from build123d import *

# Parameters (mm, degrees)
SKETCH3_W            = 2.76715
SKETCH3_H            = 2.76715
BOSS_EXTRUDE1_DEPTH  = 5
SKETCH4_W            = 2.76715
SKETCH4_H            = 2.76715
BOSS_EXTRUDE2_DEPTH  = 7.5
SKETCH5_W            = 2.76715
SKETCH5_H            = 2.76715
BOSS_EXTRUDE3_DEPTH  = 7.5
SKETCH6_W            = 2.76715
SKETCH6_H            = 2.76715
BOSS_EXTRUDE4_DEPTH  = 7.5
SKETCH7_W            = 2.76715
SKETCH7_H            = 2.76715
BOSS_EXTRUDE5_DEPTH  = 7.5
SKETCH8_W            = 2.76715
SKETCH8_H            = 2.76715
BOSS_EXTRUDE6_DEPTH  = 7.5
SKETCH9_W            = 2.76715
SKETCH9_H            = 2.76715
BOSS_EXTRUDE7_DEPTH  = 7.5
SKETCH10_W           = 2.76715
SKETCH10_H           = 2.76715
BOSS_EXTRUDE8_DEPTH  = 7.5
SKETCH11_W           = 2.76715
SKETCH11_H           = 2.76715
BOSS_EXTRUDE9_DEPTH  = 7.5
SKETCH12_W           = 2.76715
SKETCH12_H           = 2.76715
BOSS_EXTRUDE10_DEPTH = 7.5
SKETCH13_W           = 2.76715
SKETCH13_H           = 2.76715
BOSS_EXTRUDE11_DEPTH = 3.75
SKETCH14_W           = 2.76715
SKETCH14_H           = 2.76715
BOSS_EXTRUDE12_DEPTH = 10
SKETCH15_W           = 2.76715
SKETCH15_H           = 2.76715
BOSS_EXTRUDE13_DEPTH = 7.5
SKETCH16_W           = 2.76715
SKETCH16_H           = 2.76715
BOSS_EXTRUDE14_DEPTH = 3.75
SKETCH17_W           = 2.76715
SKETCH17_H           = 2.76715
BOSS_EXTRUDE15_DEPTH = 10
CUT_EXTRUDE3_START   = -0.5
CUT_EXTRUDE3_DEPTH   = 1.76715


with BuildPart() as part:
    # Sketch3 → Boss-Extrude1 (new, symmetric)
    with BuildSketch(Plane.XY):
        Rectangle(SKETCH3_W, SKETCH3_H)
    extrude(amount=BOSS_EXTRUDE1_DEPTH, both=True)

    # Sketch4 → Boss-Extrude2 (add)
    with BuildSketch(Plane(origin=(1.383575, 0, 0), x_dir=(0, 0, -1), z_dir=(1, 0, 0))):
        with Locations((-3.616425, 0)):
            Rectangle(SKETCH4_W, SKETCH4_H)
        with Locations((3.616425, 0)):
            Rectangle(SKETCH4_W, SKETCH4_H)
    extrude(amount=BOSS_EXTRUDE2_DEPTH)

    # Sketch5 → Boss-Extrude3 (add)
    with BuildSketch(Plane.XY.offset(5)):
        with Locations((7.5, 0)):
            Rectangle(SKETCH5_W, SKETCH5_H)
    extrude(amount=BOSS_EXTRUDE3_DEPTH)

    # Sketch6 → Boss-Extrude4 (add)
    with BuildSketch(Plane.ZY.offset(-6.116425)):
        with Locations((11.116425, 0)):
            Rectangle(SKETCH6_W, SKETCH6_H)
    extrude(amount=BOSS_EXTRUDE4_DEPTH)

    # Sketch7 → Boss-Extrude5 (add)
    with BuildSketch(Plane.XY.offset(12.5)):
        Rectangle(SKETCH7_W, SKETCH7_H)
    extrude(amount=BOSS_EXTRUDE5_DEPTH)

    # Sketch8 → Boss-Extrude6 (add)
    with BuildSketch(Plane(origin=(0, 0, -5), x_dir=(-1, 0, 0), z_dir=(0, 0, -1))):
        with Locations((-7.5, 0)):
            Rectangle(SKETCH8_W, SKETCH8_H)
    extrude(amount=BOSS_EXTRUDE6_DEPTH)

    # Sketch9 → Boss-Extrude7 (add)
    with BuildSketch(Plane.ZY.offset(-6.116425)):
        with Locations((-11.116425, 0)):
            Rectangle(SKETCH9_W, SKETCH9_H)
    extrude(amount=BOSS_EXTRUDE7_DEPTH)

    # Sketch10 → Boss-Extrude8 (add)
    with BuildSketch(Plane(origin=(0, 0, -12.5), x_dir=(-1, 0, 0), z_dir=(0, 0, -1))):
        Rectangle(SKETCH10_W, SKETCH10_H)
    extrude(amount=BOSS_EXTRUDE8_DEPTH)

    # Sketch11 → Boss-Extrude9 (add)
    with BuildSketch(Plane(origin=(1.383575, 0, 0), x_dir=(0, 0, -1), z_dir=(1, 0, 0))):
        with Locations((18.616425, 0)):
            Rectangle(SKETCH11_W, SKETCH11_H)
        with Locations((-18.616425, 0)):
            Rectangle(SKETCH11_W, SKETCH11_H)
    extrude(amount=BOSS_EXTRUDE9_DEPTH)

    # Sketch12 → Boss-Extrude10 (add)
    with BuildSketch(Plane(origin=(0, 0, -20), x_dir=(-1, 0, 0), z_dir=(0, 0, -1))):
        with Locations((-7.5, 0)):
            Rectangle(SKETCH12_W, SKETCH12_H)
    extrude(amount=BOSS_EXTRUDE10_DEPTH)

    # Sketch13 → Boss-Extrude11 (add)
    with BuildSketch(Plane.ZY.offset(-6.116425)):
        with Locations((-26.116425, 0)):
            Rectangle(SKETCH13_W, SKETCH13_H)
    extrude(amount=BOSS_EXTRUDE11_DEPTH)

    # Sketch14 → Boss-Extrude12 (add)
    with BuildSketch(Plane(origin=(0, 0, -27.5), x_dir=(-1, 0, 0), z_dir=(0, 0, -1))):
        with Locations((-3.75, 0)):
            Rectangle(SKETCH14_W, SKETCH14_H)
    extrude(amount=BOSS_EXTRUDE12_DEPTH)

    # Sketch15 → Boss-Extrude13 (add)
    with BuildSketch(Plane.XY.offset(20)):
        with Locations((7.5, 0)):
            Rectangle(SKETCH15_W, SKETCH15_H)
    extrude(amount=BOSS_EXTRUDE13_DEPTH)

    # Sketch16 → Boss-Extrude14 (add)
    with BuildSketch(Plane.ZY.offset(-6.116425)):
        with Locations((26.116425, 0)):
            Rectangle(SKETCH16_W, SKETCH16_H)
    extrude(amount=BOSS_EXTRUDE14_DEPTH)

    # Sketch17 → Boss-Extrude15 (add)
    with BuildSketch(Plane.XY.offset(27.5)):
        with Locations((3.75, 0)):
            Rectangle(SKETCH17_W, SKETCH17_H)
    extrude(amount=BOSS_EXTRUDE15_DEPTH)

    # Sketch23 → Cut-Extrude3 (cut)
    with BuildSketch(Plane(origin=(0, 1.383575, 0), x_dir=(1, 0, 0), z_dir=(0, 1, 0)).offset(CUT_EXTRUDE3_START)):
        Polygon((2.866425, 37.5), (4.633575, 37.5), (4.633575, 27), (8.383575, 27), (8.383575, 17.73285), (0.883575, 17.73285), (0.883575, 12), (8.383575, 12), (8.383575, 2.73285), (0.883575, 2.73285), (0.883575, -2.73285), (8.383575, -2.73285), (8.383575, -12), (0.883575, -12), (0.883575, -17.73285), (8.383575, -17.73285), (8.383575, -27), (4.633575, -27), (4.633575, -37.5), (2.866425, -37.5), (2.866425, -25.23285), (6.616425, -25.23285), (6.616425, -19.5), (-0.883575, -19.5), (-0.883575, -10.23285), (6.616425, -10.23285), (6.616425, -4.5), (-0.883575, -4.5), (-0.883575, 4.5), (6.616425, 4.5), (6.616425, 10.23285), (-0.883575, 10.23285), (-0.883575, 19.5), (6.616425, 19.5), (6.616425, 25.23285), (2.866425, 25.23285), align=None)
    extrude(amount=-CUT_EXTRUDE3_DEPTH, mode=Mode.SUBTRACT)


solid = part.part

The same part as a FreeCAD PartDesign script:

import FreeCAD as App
import Part
import Sketcher
Q = App.Units.Quantity


def add_polygon(sketch, points):
    """Adds a closed chain of lines whose ends are joined by coincident constraints."""
    first, n = sketch.GeometryCount, len(points)
    for a, b in zip(points, points[1:] + points[:1]):
        sketch.addGeometry(Part.LineSegment(App.Vector(*a, 0), App.Vector(*b, 0)), False)
    for i in range(n):
        sketch.addConstraint(Sketcher.Constraint("Coincident", first + i, 2, first + (i + 1) % n, 1))

doc = App.newDocument("Part")
body = doc.addObject("PartDesign::Body", "Body")

sketch1 = body.newObject("Sketcher::SketchObject", "Sketch")
sketch1.AttachmentSupport = (doc.getObject("XY_Plane"), [""])
sketch1.MapMode = "FlatFace"
add_polygon(sketch1, [(-1.383575, 1.383575), (-1.383575, -1.383575), (1.383575, -1.383575), (1.383575, 1.383575)])
sketch1.addConstraint([
    Sketcher.Constraint("Vertical", 0),
    Sketcher.Constraint("Horizontal", 1),
    Sketcher.Constraint("Vertical", 2),
    Sketcher.Constraint("Horizontal", 3),
    Sketcher.Constraint("Symmetric", 0, 2, 2, 2, -1, 1),
    Sketcher.Constraint("Equal", 3, 0),
    Sketcher.Constraint("DistanceX", 1, 1, 1, 2, Q("2.76715 mm")),
])
pad1 = body.newObject("PartDesign::Pad", "Pad")
pad1.Profile = sketch1
pad1.Length = 10
pad1.Midplane = True

sketch2 = body.newObject("Sketcher::SketchObject", "Sketch001")
sketch2.AttachmentSupport = (doc.getObject("YZ_Plane"), [""])
sketch2.MapMode = "FlatFace"
sketch2.AttachmentOffset = App.Placement(App.Vector(0, 0, 1.383575), App.Rotation())
add_polygon(sketch2, [(1.383575, 5), (-1.383575, 5), (-1.383575, 2.23285), (1.383575, 2.23285)])
add_polygon(sketch2, [(1.383575, -2.23285), (-1.383575, -2.23285), (-1.383575, -5), (1.383575, -5)])
sketch2.addConstraint([
    Sketcher.Constraint("Horizontal", 0),
    Sketcher.Constraint("Vertical", 1),
    Sketcher.Constraint("Horizontal", 2),
    Sketcher.Constraint("Vertical", 3),
    Sketcher.Constraint("Horizontal", 4),
    Sketcher.Constraint("Vertical", 5),
    Sketcher.Constraint("Horizontal", 6),
    Sketcher.Constraint("Vertical", 7),
    Sketcher.Constraint("Symmetric", 2, 2, 4, 2, -1, 1),
    Sketcher.Constraint("Symmetric", 0, 2, 6, 2, -1, 1),
    Sketcher.Constraint("Vertical", 1, 2, 4, 2),
    Sketcher.Constraint("Equal", 6, 1),
    Sketcher.Constraint("DistanceY", -1, 1, 0, 2, Q("5 mm")),
    Sketcher.Constraint("DistanceX", 0, 2, 0, 1, Q("2.76715 mm")),
])
pad2 = body.newObject("PartDesign::Pad", "Pad001")
pad2.Profile = sketch2
pad2.Length = 7.5

sketch3 = body.newObject("Sketcher::SketchObject", "Sketch002")
sketch3.AttachmentSupport = (doc.getObject("XY_Plane"), [""])
sketch3.MapMode = "FlatFace"
sketch3.AttachmentOffset = App.Placement(App.Vector(0, 0, 5), App.Rotation())
add_polygon(sketch3, [(6.116425, 1.383575), (6.116425, -1.383575), (8.883575, -1.383575), (8.883575, 1.383575)])
sketch3.addConstraint([
    Sketcher.Constraint("Vertical", 0),
    Sketcher.Constraint("Horizontal", 1),
    Sketcher.Constraint("Vertical", 2),
    Sketcher.Constraint("Horizontal", 3),
    Sketcher.Constraint("Equal", 3, 0),
    Sketcher.Constraint("DistanceX", 1, 1, 1, 2, Q("2.76715 mm")),
    Sketcher.Constraint("DistanceX", -1, 1, 0, 2, Q("6.116425 mm")),
    Sketcher.Constraint("DistanceY", 0, 2, -1, 1, Q("1.383575 mm")),
])
pad3 = body.newObject("PartDesign::Pad", "Pad002")
pad3.Profile = sketch3
pad3.Length = 7.5

sketch4 = body.newObject("Sketcher::SketchObject", "Sketch003")
sketch4.AttachmentSupport = (doc.getObject("YZ_Plane"), [""])
sketch4.MapMode = "FlatFace"
sketch4.AttachmentOffset = App.Placement(App.Vector(0, 0, 6.116425), App.Rotation())
add_polygon(sketch4, [(1.383575, 9.73285), (-1.383575, 9.73285), (-1.383575, 12.5), (1.383575, 12.5)])
sketch4.addConstraint([
    Sketcher.Constraint("Horizontal", 0),
    Sketcher.Constraint("Vertical", 1),
    Sketcher.Constraint("Horizontal", 2),
    Sketcher.Constraint("Vertical", 3),
    Sketcher.Constraint("Equal", 2, 1),
    Sketcher.Constraint("DistanceY", -1, 1, 1, 2, Q("12.5 mm")),
    Sketcher.Constraint("DistanceX", 0, 2, 0, 1, Q("2.76715 mm")),
    Sketcher.Constraint("DistanceX", 0, 2, -1, 1, Q("1.383575 mm")),
])
pad4 = body.newObject("PartDesign::Pad", "Pad003")
pad4.Profile = sketch4
pad4.Length = 7.5
pad4.Reversed = True

sketch5 = body.newObject("Sketcher::SketchObject", "Sketch004")
sketch5.AttachmentSupport = (doc.getObject("XY_Plane"), [""])
sketch5.MapMode = "FlatFace"
sketch5.AttachmentOffset = App.Placement(App.Vector(0, 0, 12.5), App.Rotation())
add_polygon(sketch5, [(-1.383575, 1.383575), (-1.383575, -1.383575), (1.383575, -1.383575), (1.383575, 1.383575)])
sketch5.addConstraint([
    Sketcher.Constraint("Vertical", 0),
    Sketcher.Constraint("Horizontal", 1),
    Sketcher.Constraint("Vertical", 2),
    Sketcher.Constraint("Horizontal", 3),
    Sketcher.Constraint("Symmetric", 0, 2, 2, 2, -1, 1),
    Sketcher.Constraint("Equal", 3, 0),
    Sketcher.Constraint("DistanceX", 1, 1, 1, 2, Q("2.76715 mm")),
])
pad5 = body.newObject("PartDesign::Pad", "Pad004")
pad5.Profile = sketch5
pad5.Length = 7.5

sketch6 = body.newObject("Sketcher::SketchObject", "Sketch005")
sketch6.AttachmentSupport = (doc.getObject("XY_Plane"), [""])
sketch6.MapMode = "FlatFace"
sketch6.AttachmentOffset = App.Placement(App.Vector(0, 0, -5), App.Rotation())
add_polygon(sketch6, [(8.883575, 1.383575), (8.883575, -1.383575), (6.116425, -1.383575), (6.116425, 1.383575)])
sketch6.addConstraint([
    Sketcher.Constraint("Vertical", 0),
    Sketcher.Constraint("Horizontal", 1),
    Sketcher.Constraint("Vertical", 2),
    Sketcher.Constraint("Horizontal", 3),
    Sketcher.Constraint("Equal", 3, 0),
    Sketcher.Constraint("DistanceX", 1, 2, 1, 1, Q("2.76715 mm")),
    Sketcher.Constraint("DistanceX", -1, 1, 0, 2, Q("8.883575 mm")),
    Sketcher.Constraint("DistanceY", 0, 2, -1, 1, Q("1.383575 mm")),
])
pad6 = body.newObject("PartDesign::Pad", "Pad005")
pad6.Profile = sketch6
pad6.Length = 7.5
pad6.Reversed = True

sketch7 = body.newObject("Sketcher::SketchObject", "Sketch006")
sketch7.AttachmentSupport = (doc.getObject("YZ_Plane"), [""])
sketch7.MapMode = "FlatFace"
sketch7.AttachmentOffset = App.Placement(App.Vector(0, 0, 6.116425), App.Rotation())
add_polygon(sketch7, [(1.383575, -12.5), (-1.383575, -12.5), (-1.383575, -9.73285), (1.383575, -9.73285)])
sketch7.addConstraint([
    Sketcher.Constraint("Horizontal", 0),
    Sketcher.Constraint("Vertical", 1),
    Sketcher.Constraint("Horizontal", 2),
    Sketcher.Constraint("Vertical", 3),
    Sketcher.Constraint("Equal", 2, 1),
    Sketcher.Constraint("DistanceY", 0, 2, -1, 1, Q("12.5 mm")),
    Sketcher.Constraint("DistanceX", 0, 2, 0, 1, Q("2.76715 mm")),
    Sketcher.Constraint("DistanceX", 0, 2, -1, 1, Q("1.383575 mm")),
])
pad7 = body.newObject("PartDesign::Pad", "Pad006")
pad7.Profile = sketch7
pad7.Length = 7.5
pad7.Reversed = True

sketch8 = body.newObject("Sketcher::SketchObject", "Sketch007")
sketch8.AttachmentSupport = (doc.getObject("XY_Plane"), [""])
sketch8.MapMode = "FlatFace"
sketch8.AttachmentOffset = App.Placement(App.Vector(0, 0, -12.5), App.Rotation())
add_polygon(sketch8, [(1.383575, 1.383575), (1.383575, -1.383575), (-1.383575, -1.383575), (-1.383575, 1.383575)])
sketch8.addConstraint([
    Sketcher.Constraint("Vertical", 0),
    Sketcher.Constraint("Horizontal", 1),
    Sketcher.Constraint("Vertical", 2),
    Sketcher.Constraint("Horizontal", 3),
    Sketcher.Constraint("Symmetric", 0, 2, 2, 2, -1, 1),
    Sketcher.Constraint("Equal", 3, 0),
    Sketcher.Constraint("DistanceX", 1, 2, 1, 1, Q("2.76715 mm")),
])
pad8 = body.newObject("PartDesign::Pad", "Pad007")
pad8.Profile = sketch8
pad8.Length = 7.5
pad8.Reversed = True

sketch9 = body.newObject("Sketcher::SketchObject", "Sketch008")
sketch9.AttachmentSupport = (doc.getObject("YZ_Plane"), [""])
sketch9.MapMode = "FlatFace"
sketch9.AttachmentOffset = App.Placement(App.Vector(0, 0, 1.383575), App.Rotation())
add_polygon(sketch9, [(1.383575, -17.23285), (-1.383575, -17.23285), (-1.383575, -20), (1.383575, -20)])
add_polygon(sketch9, [(1.383575, 20), (-1.383575, 20), (-1.383575, 17.23285), (1.383575, 17.23285)])
sketch9.addConstraint([
    Sketcher.Constraint("Horizontal", 0),
    Sketcher.Constraint("Vertical", 1),
    Sketcher.Constraint("Horizontal", 2),
    Sketcher.Constraint("Vertical", 3),
    Sketcher.Constraint("Horizontal", 4),
    Sketcher.Constraint("Vertical", 5),
    Sketcher.Constraint("Horizontal", 6),
    Sketcher.Constraint("Vertical", 7),
    Sketcher.Constraint("Symmetric", 2, 2, 4, 2, -1, 1),
    Sketcher.Constraint("Symmetric", 0, 2, 6, 2, -1, 1),
    Sketcher.Constraint("Vertical", 1, 2, 4, 2),
    Sketcher.Constraint("Equal", 6, 1),
    Sketcher.Constraint("DistanceY", 1, 2, -1, 1, Q("20 mm")),
    Sketcher.Constraint("DistanceX", 0, 2, 0, 1, Q("2.76715 mm")),
])
pad9 = body.newObject("PartDesign::Pad", "Pad008")
pad9.Profile = sketch9
pad9.Length = 7.5

sketch10 = body.newObject("Sketcher::SketchObject", "Sketch009")
sketch10.AttachmentSupport = (doc.getObject("XY_Plane"), [""])
sketch10.MapMode = "FlatFace"
sketch10.AttachmentOffset = App.Placement(App.Vector(0, 0, -20), App.Rotation())
add_polygon(sketch10, [(8.883575, 1.383575), (8.883575, -1.383575), (6.116425, -1.383575), (6.116425, 1.383575)])
sketch10.addConstraint([
    Sketcher.Constraint("Vertical", 0),
    Sketcher.Constraint("Horizontal", 1),
    Sketcher.Constraint("Vertical", 2),
    Sketcher.Constraint("Horizontal", 3),
    Sketcher.Constraint("Equal", 3, 0),
    Sketcher.Constraint("DistanceX", 1, 2, 1, 1, Q("2.76715 mm")),
    Sketcher.Constraint("DistanceX", -1, 1, 0, 2, Q("8.883575 mm")),
    Sketcher.Constraint("DistanceY", 0, 2, -1, 1, Q("1.383575 mm")),
])
pad10 = body.newObject("PartDesign::Pad", "Pad009")
pad10.Profile = sketch10
pad10.Length = 7.5
pad10.Reversed = True

sketch11 = body.newObject("Sketcher::SketchObject", "Sketch010")
sketch11.AttachmentSupport = (doc.getObject("YZ_Plane"), [""])
sketch11.MapMode = "FlatFace"
sketch11.AttachmentOffset = App.Placement(App.Vector(0, 0, 6.116425), App.Rotation())
add_polygon(sketch11, [(1.383575, -27.5), (-1.383575, -27.5), (-1.383575, -24.73285), (1.383575, -24.73285)])
sketch11.addConstraint([
    Sketcher.Constraint("Horizontal", 0),
    Sketcher.Constraint("Vertical", 1),
    Sketcher.Constraint("Horizontal", 2),
    Sketcher.Constraint("Vertical", 3),
    Sketcher.Constraint("Equal", 2, 1),
    Sketcher.Constraint("DistanceY", 0, 2, -1, 1, Q("27.5 mm")),
    Sketcher.Constraint("DistanceX", 0, 2, 0, 1, Q("2.76715 mm")),
    Sketcher.Constraint("DistanceX", 0, 2, -1, 1, Q("1.383575 mm")),
])
pad11 = body.newObject("PartDesign::Pad", "Pad010")
pad11.Profile = sketch11
pad11.Length = 3.75
pad11.Reversed = True

sketch12 = body.newObject("Sketcher::SketchObject", "Sketch011")
sketch12.AttachmentSupport = (doc.getObject("XY_Plane"), [""])
sketch12.MapMode = "FlatFace"
sketch12.AttachmentOffset = App.Placement(App.Vector(0, 0, -27.5), App.Rotation())
add_polygon(sketch12, [(5.133575, 1.383575), (5.133575, -1.383575), (2.366425, -1.383575), (2.366425, 1.383575)])
sketch12.addConstraint([
    Sketcher.Constraint("Vertical", 0),
    Sketcher.Constraint("Horizontal", 1),
    Sketcher.Constraint("Vertical", 2),
    Sketcher.Constraint("Horizontal", 3),
    Sketcher.Constraint("Equal", 3, 0),
    Sketcher.Constraint("DistanceX", 1, 2, 1, 1, Q("2.76715 mm")),
    Sketcher.Constraint("DistanceX", -1, 1, 0, 2, Q("5.133575 mm")),
    Sketcher.Constraint("DistanceY", 0, 2, -1, 1, Q("1.383575 mm")),
])
pad12 = body.newObject("PartDesign::Pad", "Pad011")
pad12.Profile = sketch12
pad12.Length = 10
pad12.Reversed = True

sketch13 = body.newObject("Sketcher::SketchObject", "Sketch012")
sketch13.AttachmentSupport = (doc.getObject("XY_Plane"), [""])
sketch13.MapMode = "FlatFace"
sketch13.AttachmentOffset = App.Placement(App.Vector(0, 0, 20), App.Rotation())
add_polygon(sketch13, [(6.116425, 1.383575), (6.116425, -1.383575), (8.883575, -1.383575), (8.883575, 1.383575)])
sketch13.addConstraint([
    Sketcher.Constraint("Vertical", 0),
    Sketcher.Constraint("Horizontal", 1),
    Sketcher.Constraint("Vertical", 2),
    Sketcher.Constraint("Horizontal", 3),
    Sketcher.Constraint("Equal", 3, 0),
    Sketcher.Constraint("DistanceX", 1, 1, 1, 2, Q("2.76715 mm")),
    Sketcher.Constraint("DistanceX", -1, 1, 0, 2, Q("6.116425 mm")),
    Sketcher.Constraint("DistanceY", 0, 2, -1, 1, Q("1.383575 mm")),
])
pad13 = body.newObject("PartDesign::Pad", "Pad012")
pad13.Profile = sketch13
pad13.Length = 7.5

sketch14 = body.newObject("Sketcher::SketchObject", "Sketch013")
sketch14.AttachmentSupport = (doc.getObject("YZ_Plane"), [""])
sketch14.MapMode = "FlatFace"
sketch14.AttachmentOffset = App.Placement(App.Vector(0, 0, 6.116425), App.Rotation())
add_polygon(sketch14, [(1.383575, 24.73285), (-1.383575, 24.73285), (-1.383575, 27.5), (1.383575, 27.5)])
sketch14.addConstraint([
    Sketcher.Constraint("Horizontal", 0),
    Sketcher.Constraint("Vertical", 1),
    Sketcher.Constraint("Horizontal", 2),
    Sketcher.Constraint("Vertical", 3),
    Sketcher.Constraint("Equal", 2, 1),
    Sketcher.Constraint("DistanceY", -1, 1, 1, 2, Q("27.5 mm")),
    Sketcher.Constraint("DistanceX", 0, 2, 0, 1, Q("2.76715 mm")),
    Sketcher.Constraint("DistanceX", 0, 2, -1, 1, Q("1.383575 mm")),
])
pad14 = body.newObject("PartDesign::Pad", "Pad013")
pad14.Profile = sketch14
pad14.Length = 3.75
pad14.Reversed = True

sketch15 = body.newObject("Sketcher::SketchObject", "Sketch014")
sketch15.AttachmentSupport = (doc.getObject("XY_Plane"), [""])
sketch15.MapMode = "FlatFace"
sketch15.AttachmentOffset = App.Placement(App.Vector(0, 0, 27.5), App.Rotation())
add_polygon(sketch15, [(2.366425, 1.383575), (2.366425, -1.383575), (5.133575, -1.383575), (5.133575, 1.383575)])
sketch15.addConstraint([
    Sketcher.Constraint("Vertical", 0),
    Sketcher.Constraint("Horizontal", 1),
    Sketcher.Constraint("Vertical", 2),
    Sketcher.Constraint("Horizontal", 3),
    Sketcher.Constraint("Equal", 3, 0),
    Sketcher.Constraint("DistanceX", 1, 1, 1, 2, Q("2.76715 mm")),
    Sketcher.Constraint("DistanceX", -1, 1, 0, 2, Q("2.366425 mm")),
    Sketcher.Constraint("DistanceY", 0, 2, -1, 1, Q("1.383575 mm")),
])
pad15 = body.newObject("PartDesign::Pad", "Pad014")
pad15.Profile = sketch15
pad15.Length = 10

sketch16 = body.newObject("Sketcher::SketchObject", "Sketch015")
sketch16.AttachmentSupport = (doc.getObject("XZ_Plane"), [""])
sketch16.MapMode = "FlatFace"
sketch16.AttachmentOffset = App.Placement(App.Vector(0, 0, -0.883575), App.Rotation())
add_polygon(sketch16, [(4.633575, -37.5), (2.866425, -37.5), (2.866425, -25.23285), (6.616425, -25.23285), (6.616425, -19.5), (-0.883575, -19.5), (-0.883575, -10.23285), (6.616425, -10.23285), (6.616425, -4.5), (-0.883575, -4.5), (-0.883575, 4.5), (6.616425, 4.5), (6.616425, 10.23285), (-0.883575, 10.23285), (-0.883575, 19.5), (6.616425, 19.5), (6.616425, 25.23285), (2.866425, 25.23285), (2.866425, 37.5), (4.633575, 37.5), (4.633575, 27), (8.383575, 27), (8.383575, 17.73285), (0.883575, 17.73285), (0.883575, 12), (8.383575, 12), (8.383575, 2.73285), (0.883575, 2.73285), (0.883575, -2.73285), (8.383575, -2.73285), (8.383575, -12), (0.883575, -12), (0.883575, -17.73285), (8.383575, -17.73285), (8.383575, -27), (4.633575, -27)])
sketch16.addConstraint([
    Sketcher.Constraint("Horizontal", 0),
    Sketcher.Constraint("Vertical", 1),
    Sketcher.Constraint("Horizontal", 2),
    Sketcher.Constraint("Vertical", 3),
    Sketcher.Constraint("Horizontal", 4),
    Sketcher.Constraint("Vertical", 5),
    Sketcher.Constraint("Horizontal", 6),
    Sketcher.Constraint("Vertical", 7),
    Sketcher.Constraint("Horizontal", 8),
    Sketcher.Constraint("Vertical", 9),
    Sketcher.Constraint("Horizontal", 10),
    Sketcher.Constraint("Vertical", 11),
    Sketcher.Constraint("Horizontal", 12),
    Sketcher.Constraint("Vertical", 13),
    Sketcher.Constraint("Horizontal", 14),
    Sketcher.Constraint("Vertical", 15),
    Sketcher.Constraint("Horizontal", 16),
    Sketcher.Constraint("Vertical", 17),
    Sketcher.Constraint("Horizontal", 18),
    Sketcher.Constraint("Vertical", 19),
    Sketcher.Constraint("Horizontal", 20),
    Sketcher.Constraint("Vertical", 21),
    Sketcher.Constraint("Horizontal", 22),
    Sketcher.Constraint("Vertical", 23),
    Sketcher.Constraint("Horizontal", 24),
    Sketcher.Constraint("Vertical", 25),
    Sketcher.Constraint("Horizontal", 26),
    Sketcher.Constraint("Vertical", 27),
    Sketcher.Constraint("Horizontal", 28),
    Sketcher.Constraint("Vertical", 29),
    Sketcher.Constraint("Horizontal", 30),
    Sketcher.Constraint("Vertical", 31),
    Sketcher.Constraint("Horizontal", 32),
    Sketcher.Constraint("Vertical", 33),
    Sketcher.Constraint("Horizontal", 34),
    Sketcher.Constraint("Vertical", 35),
    Sketcher.Constraint("Symmetric", 7, 2, 10, 2, -1),
    Sketcher.Constraint("Symmetric", 5, 2, 12, 2, -1),
    Sketcher.Constraint("Symmetric", 3, 2, 14, 2, -1),
    Sketcher.Constraint("Symmetric", 1, 2, 16, 2, -1),
    Sketcher.Constraint("Symmetric", 25, 2, 28, 2, -1),
    Sketcher.Constraint("Symmetric", 23, 2, 30, 2, -1),
    Sketcher.Constraint("Symmetric", 21, 2, 32, 2, -1),
    Sketcher.Constraint("Symmetric", 19, 2, 34, 2, -1),
    Sketcher.Constraint("Vertical", 3, 2, 6, 2),
    Sketcher.Constraint("Vertical", 5, 2, 8, 2),
    Sketcher.Constraint("Vertical", 21, 2, 24, 2),
    Sketcher.Constraint("Vertical", 23, 2, 26, 2),
    Sketcher.Constraint("Equal", 16, 20),
    Sketcher.Constraint("Equal", 14, 22),
    Sketcher.Constraint("Equal", 3, 7),
    Sketcher.Constraint("Equal", 1, 17),
    Sketcher.Constraint("Equal", 13, 21),
    Sketcher.Constraint("Equal", 15, 23),
    Sketcher.Constraint("Equal", 21, 25),
    Sketcher.Constraint("DistanceY", 9, 1, 9, 2, Q("9 mm")),
    Sketcher.Constraint("DistanceX", 4, 2, 4, 1, Q("7.5 mm")),
    Sketcher.Constraint("DistanceY", 19, 2, 19, 1, Q("10.5 mm")),
    Sketcher.Constraint("DistanceY", -1, 1, 19, 2, Q("27 mm")),
    Sketcher.Constraint("DistanceY", -1, 1, 23, 2, Q("12 mm")),
    Sketcher.Constraint("DistanceX", 2, 1, 2, 2, Q("3.75 mm")),
    Sketcher.Constraint("DistanceY", 27, 2, 27, 1, Q("5.4657 mm")),
    Sketcher.Constraint("DistanceX", 0, 2, 0, 1, Q("1.76715 mm")),
    Sketcher.Constraint("DistanceX", -1, 1, 0, 2, Q("2.866425 mm")),
])
pocket1 = body.newObject("PartDesign::Pocket", "Pocket")
pocket1.Profile = sketch16
pocket1.Length = 1.76715
pocket1.Reversed = True

doc.recompute()
